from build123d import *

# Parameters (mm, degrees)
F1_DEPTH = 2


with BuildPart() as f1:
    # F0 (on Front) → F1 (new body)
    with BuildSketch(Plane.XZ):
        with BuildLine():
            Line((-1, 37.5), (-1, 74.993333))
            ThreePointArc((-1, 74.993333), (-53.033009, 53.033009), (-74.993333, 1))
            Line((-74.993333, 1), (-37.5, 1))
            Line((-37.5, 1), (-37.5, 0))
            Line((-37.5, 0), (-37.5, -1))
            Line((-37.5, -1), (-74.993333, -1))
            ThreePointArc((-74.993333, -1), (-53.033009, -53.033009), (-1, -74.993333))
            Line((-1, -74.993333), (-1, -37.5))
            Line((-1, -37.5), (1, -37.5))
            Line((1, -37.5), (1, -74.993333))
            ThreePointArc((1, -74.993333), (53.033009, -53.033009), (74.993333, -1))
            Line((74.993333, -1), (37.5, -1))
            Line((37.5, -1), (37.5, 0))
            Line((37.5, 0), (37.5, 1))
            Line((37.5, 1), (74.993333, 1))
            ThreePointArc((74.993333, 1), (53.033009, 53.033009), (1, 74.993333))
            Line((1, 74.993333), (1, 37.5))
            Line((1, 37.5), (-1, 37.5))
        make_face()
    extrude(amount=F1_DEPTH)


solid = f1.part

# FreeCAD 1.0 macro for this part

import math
import FreeCAD as App
import Part
import Sketcher

V = App.Vector

doc = App.newDocument("Part")
body = doc.addObject("PartDesign::Body", "Body")

# Sketch on XZ plane
sketch1 = doc.addObject("Sketcher::SketchObject", "Sketch")
body.addObject(sketch1)
sketch1.AttachmentSupport = (doc.XZ_Plane, [""])
sketch1.MapMode = "FlatFace"
sketch1.addGeometry([
    Part.LineSegment(V(-1, 37.5, 0), V(-1, 75, 0)),  # 0
    Part.ArcOfCircle(Part.Circle(V(0, 0, 0), V(0, 0, 1), 75), math.radians(91), math.radians(179)),  # 1
    Part.LineSegment(V(-75, 1, 0), V(-37.5, 1, 0)),  # 2
    Part.LineSegment(V(-37.5, 1, 0), V(-37.5, -1, 0)),  # 3
    Part.LineSegment(V(-37.5, -1, 0), V(-75, -1, 0)),  # 4
    Part.ArcOfCircle(Part.Circle(V(0, 0, 0), V(0, 0, 1), 75), math.radians(-179), math.radians(-91)),  # 5
    Part.LineSegment(V(-1, -75, 0), V(-1, -37.5, 0)),  # 6
    Part.LineSegment(V(-1, -37.5, 0), V(1, -37.5, 0)),  # 7
    Part.LineSegment(V(1, -37.5, 0), V(1, -75, 0)),  # 8
    Part.ArcOfCircle(Part.Circle(V(0, 0, 0), V(0, 0, 1), 75), math.radians(-89), math.radians(-1)),  # 9
    Part.LineSegment(V(75, -1, 0), V(37.5, -1, 0)),  # 10
    Part.LineSegment(V(37.5, -1, 0), V(37.5, 1, 0)),  # 11
    Part.LineSegment(V(37.5, 1, 0), V(75, 1, 0)),  # 12
    Part.ArcOfCircle(Part.Circle(V(0, 0, 0), V(0, 0, 1), 75), math.radians(1), math.radians(89)),  # 13
    Part.LineSegment(V(1, 75, 0), V(1, 37.5, 0)),  # 14
    Part.LineSegment(V(1, 37.5, 0), V(-1, 37.5, 0)),  # 15
], False)
sketch1.addConstraint([
    Sketcher.Constraint("Coincident", 0, 2, 1, 1),
    Sketcher.Constraint("Coincident", 1, 2, 2, 1),
    Sketcher.Constraint("Coincident", 2, 2, 3, 1),
    Sketcher.Constraint("Coincident", 3, 2, 4, 1),
    Sketcher.Constraint("Coincident", 4, 2, 5, 1),
    Sketcher.Constraint("Coincident", 5, 2, 6, 1),
    Sketcher.Constraint("Coincident", 6, 2, 7, 1),
    Sketcher.Constraint("Coincident", 7, 2, 8, 1),
    Sketcher.Constraint("Coincident", 8, 2, 9, 1),
    Sketcher.Constraint("Coincident", 9, 2, 10, 1),
    Sketcher.Constraint("Coincident", 10, 2, 11, 1),
    Sketcher.Constraint("Coincident", 11, 2, 12, 1),
    Sketcher.Constraint("Coincident", 12, 2, 13, 1),
    Sketcher.Constraint("Coincident", 13, 2, 14, 1),
    Sketcher.Constraint("Coincident", 14, 2, 15, 1),
    Sketcher.Constraint("Coincident", 15, 2, 0, 1),
    Sketcher.Constraint("Vertical", 0),
    Sketcher.Constraint("Horizontal", 2),
    Sketcher.Constraint("Vertical", 3),
    Sketcher.Constraint("Horizontal", 4),
    Sketcher.Constraint("Vertical", 6),
    Sketcher.Constraint("Horizontal", 7),
    Sketcher.Constraint("Vertical", 8),
    Sketcher.Constraint("Horizontal", 10),
    Sketcher.Constraint("Vertical", 11),
    Sketcher.Constraint("Horizontal", 12),
    Sketcher.Constraint("Vertical", 14),
    Sketcher.Constraint("Horizontal", 15),
    Sketcher.Constraint("Coincident", 1, 3, -1, 1),
    Sketcher.Constraint("Coincident", 5, 3, -1, 1),
    Sketcher.Constraint("Coincident", 9, 3, -1, 1),
    Sketcher.Constraint("Coincident", 13, 3, -1, 1),
    Sketcher.Constraint("Equal", 1, 5),
    Sketcher.Constraint("Equal", 5, 9),
    Sketcher.Constraint("Equal", 9, 13),
    Sketcher.Constraint("Symmetric", 2, 2, 10, 2, -1, 1),
    Sketcher.Constraint("Symmetric", 6, 2, 14, 2, -1, 1),
    Sketcher.Constraint("Horizontal", 5, 2, 8, 2),
    Sketcher.Constraint("Horizontal", 4, 2, 9, 2),
    Sketcher.Constraint("Horizontal", 2, 2, 11, 2),
    Sketcher.Constraint("Horizontal", 0, 2, 13, 2),
    Sketcher.Constraint("Equal", 12, 0),
    Sketcher.Constraint("Equal", 15, 3),
    Sketcher.Constraint("Radius", 1, 74.999998),
    Sketcher.Constraint("DistanceX", 7, 1, 7, 2, 2.0),
    Sketcher.Constraint("DistanceX", 2, 2, -1, 1, 37.5),
])
pad1 = doc.addObject("PartDesign::Pad", "Pad")
body.addObject(pad1)
pad1.Profile = sketch1
pad1.Length = 2

doc.recompute()
